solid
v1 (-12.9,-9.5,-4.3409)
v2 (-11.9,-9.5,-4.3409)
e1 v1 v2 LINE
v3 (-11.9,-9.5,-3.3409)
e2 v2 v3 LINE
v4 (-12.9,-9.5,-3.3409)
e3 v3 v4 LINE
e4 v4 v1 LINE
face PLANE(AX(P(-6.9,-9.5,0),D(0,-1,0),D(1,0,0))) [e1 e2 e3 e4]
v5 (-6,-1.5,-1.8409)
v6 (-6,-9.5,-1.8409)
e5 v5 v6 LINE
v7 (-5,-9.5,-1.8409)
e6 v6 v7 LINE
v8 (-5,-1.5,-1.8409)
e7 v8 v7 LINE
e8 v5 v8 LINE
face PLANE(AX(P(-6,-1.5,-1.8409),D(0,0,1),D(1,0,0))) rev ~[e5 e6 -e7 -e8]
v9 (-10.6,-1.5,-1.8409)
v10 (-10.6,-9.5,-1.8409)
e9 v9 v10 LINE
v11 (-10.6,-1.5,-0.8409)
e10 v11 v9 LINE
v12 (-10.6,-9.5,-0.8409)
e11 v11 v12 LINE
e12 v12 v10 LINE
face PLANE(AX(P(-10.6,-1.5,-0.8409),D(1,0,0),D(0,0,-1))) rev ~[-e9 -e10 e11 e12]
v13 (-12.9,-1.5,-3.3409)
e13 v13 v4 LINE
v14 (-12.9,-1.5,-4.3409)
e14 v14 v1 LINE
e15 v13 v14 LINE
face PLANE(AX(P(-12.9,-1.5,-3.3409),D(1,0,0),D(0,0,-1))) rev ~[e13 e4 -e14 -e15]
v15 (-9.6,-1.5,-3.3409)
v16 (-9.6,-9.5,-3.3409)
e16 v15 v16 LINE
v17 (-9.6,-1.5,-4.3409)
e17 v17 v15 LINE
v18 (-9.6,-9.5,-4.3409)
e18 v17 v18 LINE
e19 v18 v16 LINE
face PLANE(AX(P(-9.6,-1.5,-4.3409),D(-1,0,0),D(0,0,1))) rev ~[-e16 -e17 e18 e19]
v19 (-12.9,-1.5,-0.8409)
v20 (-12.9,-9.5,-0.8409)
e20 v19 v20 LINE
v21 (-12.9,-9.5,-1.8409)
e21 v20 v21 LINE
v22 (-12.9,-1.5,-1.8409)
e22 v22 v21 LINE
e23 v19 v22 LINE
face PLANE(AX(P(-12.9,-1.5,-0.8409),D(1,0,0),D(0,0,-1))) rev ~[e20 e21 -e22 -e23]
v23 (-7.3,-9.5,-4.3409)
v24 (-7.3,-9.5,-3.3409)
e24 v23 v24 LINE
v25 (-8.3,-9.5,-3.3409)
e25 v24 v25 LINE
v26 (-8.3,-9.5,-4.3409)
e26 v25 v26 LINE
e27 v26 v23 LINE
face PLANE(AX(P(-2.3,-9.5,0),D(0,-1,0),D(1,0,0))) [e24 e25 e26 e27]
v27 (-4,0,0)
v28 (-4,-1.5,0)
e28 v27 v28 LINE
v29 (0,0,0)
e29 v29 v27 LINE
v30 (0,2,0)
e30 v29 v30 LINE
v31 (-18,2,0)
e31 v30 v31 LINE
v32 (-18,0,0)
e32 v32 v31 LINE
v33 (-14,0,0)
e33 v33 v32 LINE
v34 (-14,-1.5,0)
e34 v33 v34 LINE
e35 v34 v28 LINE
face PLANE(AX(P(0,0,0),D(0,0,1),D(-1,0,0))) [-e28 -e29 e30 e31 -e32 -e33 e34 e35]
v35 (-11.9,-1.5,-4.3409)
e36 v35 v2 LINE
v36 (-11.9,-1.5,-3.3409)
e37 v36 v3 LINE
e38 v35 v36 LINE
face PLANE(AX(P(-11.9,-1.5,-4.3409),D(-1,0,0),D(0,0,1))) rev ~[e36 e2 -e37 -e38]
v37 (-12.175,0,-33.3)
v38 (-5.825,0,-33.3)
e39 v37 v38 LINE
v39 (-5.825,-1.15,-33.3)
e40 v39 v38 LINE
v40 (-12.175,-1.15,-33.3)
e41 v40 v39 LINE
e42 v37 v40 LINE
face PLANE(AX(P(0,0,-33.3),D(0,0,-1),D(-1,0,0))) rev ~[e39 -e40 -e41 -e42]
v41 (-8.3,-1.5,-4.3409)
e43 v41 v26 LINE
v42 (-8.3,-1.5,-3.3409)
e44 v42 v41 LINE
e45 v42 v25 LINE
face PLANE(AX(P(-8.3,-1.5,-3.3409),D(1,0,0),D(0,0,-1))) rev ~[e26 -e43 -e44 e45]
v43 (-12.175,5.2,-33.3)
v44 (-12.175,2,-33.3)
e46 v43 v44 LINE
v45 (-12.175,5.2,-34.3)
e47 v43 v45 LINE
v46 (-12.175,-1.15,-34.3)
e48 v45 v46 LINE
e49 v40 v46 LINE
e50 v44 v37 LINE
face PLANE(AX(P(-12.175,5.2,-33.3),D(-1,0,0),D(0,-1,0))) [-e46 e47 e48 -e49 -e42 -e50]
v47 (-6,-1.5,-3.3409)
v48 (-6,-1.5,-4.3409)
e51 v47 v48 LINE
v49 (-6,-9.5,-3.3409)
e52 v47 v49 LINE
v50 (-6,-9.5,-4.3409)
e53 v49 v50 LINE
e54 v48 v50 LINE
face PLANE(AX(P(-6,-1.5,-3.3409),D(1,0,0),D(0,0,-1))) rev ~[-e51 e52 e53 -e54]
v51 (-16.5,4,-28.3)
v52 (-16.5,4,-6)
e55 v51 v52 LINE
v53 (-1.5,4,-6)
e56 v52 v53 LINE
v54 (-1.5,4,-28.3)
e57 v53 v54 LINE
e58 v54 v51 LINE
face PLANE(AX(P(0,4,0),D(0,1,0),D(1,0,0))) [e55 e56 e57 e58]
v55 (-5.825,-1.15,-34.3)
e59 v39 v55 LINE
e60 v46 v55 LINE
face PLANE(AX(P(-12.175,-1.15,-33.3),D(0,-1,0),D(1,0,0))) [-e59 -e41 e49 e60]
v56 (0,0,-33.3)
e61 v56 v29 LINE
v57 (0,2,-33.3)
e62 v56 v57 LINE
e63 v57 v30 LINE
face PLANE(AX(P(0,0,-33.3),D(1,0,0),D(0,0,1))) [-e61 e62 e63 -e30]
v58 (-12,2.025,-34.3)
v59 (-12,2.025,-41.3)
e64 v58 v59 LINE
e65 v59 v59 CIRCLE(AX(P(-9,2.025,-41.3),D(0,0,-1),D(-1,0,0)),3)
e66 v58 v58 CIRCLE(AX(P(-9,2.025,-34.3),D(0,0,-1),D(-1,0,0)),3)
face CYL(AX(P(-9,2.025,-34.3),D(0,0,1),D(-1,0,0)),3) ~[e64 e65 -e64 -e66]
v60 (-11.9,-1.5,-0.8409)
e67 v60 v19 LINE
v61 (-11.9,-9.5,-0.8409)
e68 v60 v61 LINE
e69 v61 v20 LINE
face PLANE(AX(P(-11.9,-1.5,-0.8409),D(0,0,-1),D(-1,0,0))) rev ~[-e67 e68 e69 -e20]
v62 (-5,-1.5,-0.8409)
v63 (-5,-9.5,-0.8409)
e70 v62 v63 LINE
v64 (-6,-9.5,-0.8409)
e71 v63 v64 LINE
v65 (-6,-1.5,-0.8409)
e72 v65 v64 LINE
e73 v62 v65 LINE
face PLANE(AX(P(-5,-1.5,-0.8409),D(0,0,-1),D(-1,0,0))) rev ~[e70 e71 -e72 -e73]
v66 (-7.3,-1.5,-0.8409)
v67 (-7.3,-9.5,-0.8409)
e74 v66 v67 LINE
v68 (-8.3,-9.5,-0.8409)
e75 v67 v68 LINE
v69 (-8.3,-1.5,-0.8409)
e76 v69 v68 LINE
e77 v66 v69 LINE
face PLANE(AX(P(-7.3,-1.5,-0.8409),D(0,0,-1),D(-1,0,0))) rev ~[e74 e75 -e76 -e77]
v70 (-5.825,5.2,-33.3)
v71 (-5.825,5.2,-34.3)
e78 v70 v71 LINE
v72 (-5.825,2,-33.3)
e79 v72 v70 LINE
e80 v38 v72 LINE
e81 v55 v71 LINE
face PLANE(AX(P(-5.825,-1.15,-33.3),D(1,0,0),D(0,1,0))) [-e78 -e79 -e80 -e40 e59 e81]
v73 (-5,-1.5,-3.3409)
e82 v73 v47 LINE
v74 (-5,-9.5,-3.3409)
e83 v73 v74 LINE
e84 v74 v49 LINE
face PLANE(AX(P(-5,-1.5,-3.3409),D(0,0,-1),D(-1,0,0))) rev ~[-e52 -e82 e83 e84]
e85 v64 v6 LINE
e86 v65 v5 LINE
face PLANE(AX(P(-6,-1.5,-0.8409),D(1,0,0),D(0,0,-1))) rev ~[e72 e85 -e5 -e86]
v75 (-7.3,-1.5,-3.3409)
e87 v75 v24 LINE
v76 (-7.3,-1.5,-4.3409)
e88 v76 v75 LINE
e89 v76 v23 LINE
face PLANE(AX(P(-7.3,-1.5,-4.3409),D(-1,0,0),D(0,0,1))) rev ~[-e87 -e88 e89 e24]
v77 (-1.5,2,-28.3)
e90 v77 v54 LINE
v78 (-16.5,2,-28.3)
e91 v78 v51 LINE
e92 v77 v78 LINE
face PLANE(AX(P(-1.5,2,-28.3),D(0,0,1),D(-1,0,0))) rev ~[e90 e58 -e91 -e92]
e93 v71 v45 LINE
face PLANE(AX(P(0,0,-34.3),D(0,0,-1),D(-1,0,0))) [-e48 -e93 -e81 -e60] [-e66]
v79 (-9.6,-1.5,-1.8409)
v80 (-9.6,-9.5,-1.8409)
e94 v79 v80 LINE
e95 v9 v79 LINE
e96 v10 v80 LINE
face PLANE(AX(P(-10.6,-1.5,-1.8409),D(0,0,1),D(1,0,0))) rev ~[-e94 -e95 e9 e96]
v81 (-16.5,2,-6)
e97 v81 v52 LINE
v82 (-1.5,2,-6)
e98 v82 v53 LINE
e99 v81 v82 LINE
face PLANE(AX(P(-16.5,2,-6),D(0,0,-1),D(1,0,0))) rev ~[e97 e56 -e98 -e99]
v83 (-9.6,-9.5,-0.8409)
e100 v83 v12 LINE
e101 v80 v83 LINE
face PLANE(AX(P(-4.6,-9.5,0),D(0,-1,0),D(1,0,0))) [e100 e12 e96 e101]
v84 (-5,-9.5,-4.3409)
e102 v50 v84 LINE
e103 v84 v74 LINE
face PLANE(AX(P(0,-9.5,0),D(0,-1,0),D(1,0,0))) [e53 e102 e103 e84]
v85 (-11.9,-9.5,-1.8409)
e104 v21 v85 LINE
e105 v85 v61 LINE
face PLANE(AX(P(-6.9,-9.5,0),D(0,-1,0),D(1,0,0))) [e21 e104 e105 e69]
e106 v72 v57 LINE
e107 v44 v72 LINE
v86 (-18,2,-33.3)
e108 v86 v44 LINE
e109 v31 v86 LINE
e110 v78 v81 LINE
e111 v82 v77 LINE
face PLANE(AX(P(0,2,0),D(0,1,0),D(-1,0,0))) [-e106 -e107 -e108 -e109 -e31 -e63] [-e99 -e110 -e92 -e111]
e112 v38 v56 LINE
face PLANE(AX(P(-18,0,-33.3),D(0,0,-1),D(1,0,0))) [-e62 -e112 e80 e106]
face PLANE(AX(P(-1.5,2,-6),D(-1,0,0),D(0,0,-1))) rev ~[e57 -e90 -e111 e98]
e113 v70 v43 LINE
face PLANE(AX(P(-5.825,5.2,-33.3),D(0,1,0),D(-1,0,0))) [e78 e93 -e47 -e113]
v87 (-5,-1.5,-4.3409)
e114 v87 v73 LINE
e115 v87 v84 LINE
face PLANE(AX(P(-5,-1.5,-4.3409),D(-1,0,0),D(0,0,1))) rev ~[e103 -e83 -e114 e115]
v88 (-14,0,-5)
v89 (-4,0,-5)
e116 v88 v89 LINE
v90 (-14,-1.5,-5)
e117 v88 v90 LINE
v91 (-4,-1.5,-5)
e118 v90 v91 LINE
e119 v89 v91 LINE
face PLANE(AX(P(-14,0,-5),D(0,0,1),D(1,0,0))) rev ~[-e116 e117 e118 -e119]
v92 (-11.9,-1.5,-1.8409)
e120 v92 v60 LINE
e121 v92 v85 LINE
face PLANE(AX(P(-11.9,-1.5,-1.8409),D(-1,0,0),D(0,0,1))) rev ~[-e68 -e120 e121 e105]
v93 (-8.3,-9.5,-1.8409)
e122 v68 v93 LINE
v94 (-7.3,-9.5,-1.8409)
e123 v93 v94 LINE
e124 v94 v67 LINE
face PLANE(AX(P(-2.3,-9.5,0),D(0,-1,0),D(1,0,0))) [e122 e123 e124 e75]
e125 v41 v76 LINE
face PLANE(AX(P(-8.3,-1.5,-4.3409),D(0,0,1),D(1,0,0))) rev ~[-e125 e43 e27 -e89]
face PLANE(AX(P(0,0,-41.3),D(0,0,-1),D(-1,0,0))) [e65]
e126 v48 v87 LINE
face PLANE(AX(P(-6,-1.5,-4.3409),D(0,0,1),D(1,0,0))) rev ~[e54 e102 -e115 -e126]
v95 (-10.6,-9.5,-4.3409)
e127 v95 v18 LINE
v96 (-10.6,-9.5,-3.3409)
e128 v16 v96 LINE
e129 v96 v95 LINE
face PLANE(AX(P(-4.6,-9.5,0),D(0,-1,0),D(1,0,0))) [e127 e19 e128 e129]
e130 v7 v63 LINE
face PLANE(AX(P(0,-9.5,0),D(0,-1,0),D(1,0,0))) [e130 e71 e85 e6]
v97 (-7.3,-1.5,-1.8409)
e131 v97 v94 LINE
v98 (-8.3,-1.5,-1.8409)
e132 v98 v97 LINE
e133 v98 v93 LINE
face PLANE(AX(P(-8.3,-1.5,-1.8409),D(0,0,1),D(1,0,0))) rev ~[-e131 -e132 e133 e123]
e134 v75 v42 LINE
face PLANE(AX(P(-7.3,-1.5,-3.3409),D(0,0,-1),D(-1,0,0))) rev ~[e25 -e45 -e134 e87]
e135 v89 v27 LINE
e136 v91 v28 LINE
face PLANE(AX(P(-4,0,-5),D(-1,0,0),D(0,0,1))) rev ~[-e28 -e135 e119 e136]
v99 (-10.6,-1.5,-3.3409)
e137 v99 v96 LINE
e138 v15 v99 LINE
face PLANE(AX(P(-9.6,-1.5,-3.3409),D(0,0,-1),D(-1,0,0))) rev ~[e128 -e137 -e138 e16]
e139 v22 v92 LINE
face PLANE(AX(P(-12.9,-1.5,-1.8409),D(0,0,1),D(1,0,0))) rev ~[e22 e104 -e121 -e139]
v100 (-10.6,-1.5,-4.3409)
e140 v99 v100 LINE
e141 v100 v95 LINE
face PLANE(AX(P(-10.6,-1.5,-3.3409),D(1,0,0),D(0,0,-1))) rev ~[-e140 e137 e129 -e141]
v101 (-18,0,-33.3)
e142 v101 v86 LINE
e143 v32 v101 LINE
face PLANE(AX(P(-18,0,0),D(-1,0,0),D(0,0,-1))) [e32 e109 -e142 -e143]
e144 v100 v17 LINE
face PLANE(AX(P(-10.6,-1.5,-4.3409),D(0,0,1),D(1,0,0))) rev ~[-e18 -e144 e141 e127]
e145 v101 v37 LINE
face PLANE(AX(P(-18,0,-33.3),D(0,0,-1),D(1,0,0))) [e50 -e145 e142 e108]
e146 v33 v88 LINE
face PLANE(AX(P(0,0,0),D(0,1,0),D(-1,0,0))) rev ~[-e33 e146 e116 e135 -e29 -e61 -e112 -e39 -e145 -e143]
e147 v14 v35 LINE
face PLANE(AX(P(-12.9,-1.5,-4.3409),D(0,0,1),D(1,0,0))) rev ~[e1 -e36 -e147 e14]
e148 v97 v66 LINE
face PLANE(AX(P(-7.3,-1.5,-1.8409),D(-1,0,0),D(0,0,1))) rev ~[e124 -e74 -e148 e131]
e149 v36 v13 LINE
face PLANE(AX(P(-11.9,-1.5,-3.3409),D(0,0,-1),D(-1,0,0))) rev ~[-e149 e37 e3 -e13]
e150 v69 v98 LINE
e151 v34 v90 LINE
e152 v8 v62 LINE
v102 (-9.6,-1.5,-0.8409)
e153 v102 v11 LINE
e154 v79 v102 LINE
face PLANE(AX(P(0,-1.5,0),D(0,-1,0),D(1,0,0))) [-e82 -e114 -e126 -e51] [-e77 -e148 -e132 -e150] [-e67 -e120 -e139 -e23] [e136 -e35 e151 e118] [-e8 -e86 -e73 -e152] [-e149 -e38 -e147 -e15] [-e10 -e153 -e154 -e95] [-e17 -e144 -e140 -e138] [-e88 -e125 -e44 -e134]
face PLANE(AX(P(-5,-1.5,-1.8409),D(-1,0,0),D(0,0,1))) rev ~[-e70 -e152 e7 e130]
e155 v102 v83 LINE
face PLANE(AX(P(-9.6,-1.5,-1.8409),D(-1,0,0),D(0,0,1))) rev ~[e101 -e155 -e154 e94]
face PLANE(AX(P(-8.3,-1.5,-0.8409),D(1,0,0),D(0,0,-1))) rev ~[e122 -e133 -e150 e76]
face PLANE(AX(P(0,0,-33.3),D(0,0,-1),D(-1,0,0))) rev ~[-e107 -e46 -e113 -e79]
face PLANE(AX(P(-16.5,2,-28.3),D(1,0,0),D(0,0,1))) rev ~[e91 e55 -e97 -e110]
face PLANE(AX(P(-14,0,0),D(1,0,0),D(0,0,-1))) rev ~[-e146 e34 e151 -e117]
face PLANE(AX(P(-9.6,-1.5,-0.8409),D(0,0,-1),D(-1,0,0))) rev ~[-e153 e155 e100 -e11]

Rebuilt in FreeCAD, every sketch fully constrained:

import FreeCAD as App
import Part
import Sketcher
Q = App.Units.Quantity


def add_polygon(sketch, points):
    """Adds a closed chain of lines whose ends are joined by coincident constraints."""
    first, n = sketch.GeometryCount, len(points)
    for a, b in zip(points, points[1:] + points[:1]):
        sketch.addGeometry(Part.LineSegment(App.Vector(*a, 0), App.Vector(*b, 0)), False)
    for i in range(n):
        sketch.addConstraint(Sketcher.Constraint("Coincident", first + i, 2, first + (i + 1) % n, 1))

doc = App.newDocument("Part")
body = doc.addObject("PartDesign::Body", "Body")

sketch1 = body.newObject("Sketcher::SketchObject", "Sketch")
sketch1.AttachmentSupport = (doc.getObject("XZ_Plane"), [""])
sketch1.MapMode = "FlatFace"
add_polygon(sketch1, [(-18, 0), (0, 0), (0, -33), (-18, -33)])
sketch1.addConstraint([
    Sketcher.Constraint("Horizontal", 0),
    Sketcher.Constraint("Vertical", 1),
    Sketcher.Constraint("Horizontal", 2),
    Sketcher.Constraint("Vertical", 3),
    Sketcher.Constraint("Coincident", 0, 2, -1, 1),
    Sketcher.Constraint("DistanceX", 0, 1, 0, 2, Q("18 mm")),
    Sketcher.Constraint("DistanceY", 1, 2, 1, 1, Q("33.3 mm")),
])
pad1 = body.newObject("PartDesign::Pad", "Pad")
pad1.Profile = sketch1
pad1.Length = 2
pad1.Reversed = True

sketch2 = body.newObject("Sketcher::SketchObject", "Sketch001")
sketch2.AttachmentSupport = (doc.getObject("XZ_Plane"), [""])
sketch2.MapMode = "FlatFace"
sketch2.AttachmentOffset = App.Placement(App.Vector(0, 0, -2), App.Rotation())
add_polygon(sketch2, [(-16, -28), (-16, -6), (-2, -6), (-2, -28)])
sketch2.addConstraint([
    Sketcher.Constraint("Vertical", 0),
    Sketcher.Constraint("Horizontal", 1),
    Sketcher.Constraint("Vertical", 2),
    Sketcher.Constraint("Horizontal", 3),
    Sketcher.Constraint("DistanceY", 0, 2, -1, 1, Q("6 mm")),
    Sketcher.Constraint("DistanceX", 1, 2, -1, 1, Q("1.5 mm")),
    Sketcher.Constraint("DistanceX", 1, 1, 1, 2, Q("15 mm")),
    Sketcher.Constraint("DistanceY", 0, 1, 0, 2, Q("22.3 mm")),
])
pad2 = body.newObject("PartDesign::Pad", "Pad001")
pad2.Profile = sketch2
pad2.Length = 2
pad2.Reversed = True

sketch3 = body.newObject("Sketcher::SketchObject", "Sketch002")
sketch3.AttachmentSupport = (doc.getObject("XY_Plane"), [""])
sketch3.MapMode = "FlatFace"
sketch3.AttachmentOffset = App.Placement(App.Vector(0, 0, -33.3), App.Rotation())
add_polygon(sketch3, [(-12, 5), (-6, 5), (-6, -1), (-12, -1)])
sketch3.addConstraint([
    Sketcher.Constraint("Horizontal", 0),
    Sketcher.Constraint("Vertical", 1),
    Sketcher.Constraint("Horizontal", 2),
    Sketcher.Constraint("Vertical", 3),
    Sketcher.Constraint("Equal", 2, 1),
    Sketcher.Constraint("DistanceX", 0, 1, 0, 2, Q("6.35 mm")),
    Sketcher.Constraint("DistanceY", -1, 1, 0, 2, Q("5.2 mm")),
    Sketcher.Constraint("DistanceX", 0, 2, -1, 1, Q("5.825 mm")),
])
pad3 = body.newObject("PartDesign::Pad", "Pad002")
pad3.Profile = sketch3
pad3.Length = 1
pad3.Reversed = True

sketch4 = body.newObject("Sketcher::SketchObject", "Sketch003")
sketch4.AttachmentSupport = (doc.getObject("XY_Plane"), [""])
sketch4.MapMode = "FlatFace"
sketch4.AttachmentOffset = App.Placement(App.Vector(0, 0, -34.3), App.Rotation())
sketch4.addGeometry(Part.Circle(App.Vector(-9, 2, 0), App.Vector(0, 0, 1), 3), False)
sketch4.addConstraint([
    Sketcher.Constraint("Diameter", 0, Q("6 mm")),
    Sketcher.Constraint("DistanceX", 0, 3, -1, 1, Q("9 mm")),
    Sketcher.Constraint("DistanceY", -1, 1, 0, 3, Q("2.025 mm")),
])
pad4 = body.newObject("PartDesign::Pad", "Pad003")
pad4.Profile = sketch4
pad4.Length = 7
pad4.Reversed = True

sketch5 = body.newObject("Sketcher::SketchObject", "Sketch004")
sketch5.AttachmentSupport = (doc.getObject("XZ_Plane"), [""])
sketch5.MapMode = "FlatFace"
add_polygon(sketch5, [(-4, 0), (-14, 0), (-14, -5), (-4, -5)])
sketch5.addConstraint([
    Sketcher.Constraint("Horizontal", 0),
    Sketcher.Constraint("Vertical", 1),
    Sketcher.Constraint("Horizontal", 2),
    Sketcher.Constraint("Vertical", 3),
    Sketcher.Constraint("PointOnObject", 0, 2, -1),
    Sketcher.Constraint("DistanceX", 0, 2, 0, 1, Q("10 mm")),
    Sketcher.Constraint("DistanceY", 1, 2, 1, 1, Q("5 mm")),
    Sketcher.Constraint("DistanceX", 0, 2, -1, 1, Q("14 mm")),
])
pad5 = body.newObject("PartDesign::Pad", "Pad004")
pad5.Profile = sketch5
pad5.Length = 1.5

sketch6 = body.newObject("Sketcher::SketchObject", "Sketch005")
sketch6.AttachmentSupport = (doc.getObject("XZ_Plane"), [""])
sketch6.MapMode = "FlatFace"
sketch6.AttachmentOffset = App.Placement(App.Vector(0, 0, 1.5), App.Rotation())
add_polygon(sketch6, [(-6, -0.8), (-6, -1.8), (-5, -1.8), (-5, -0.8)])
add_polygon(sketch6, [(-6, -3.3), (-6, -4.3), (-5, -4.3), (-5, -3.3)])
sketch6.addConstraint([
    Sketcher.Constraint("Vertical", 0),
    Sketcher.Constraint("Horizontal", 1),
    Sketcher.Constraint("Vertical", 2),
    Sketcher.Constraint("Horizontal", 3),
    Sketcher.Constraint("Vertical", 4),
    Sketcher.Constraint("Horizontal", 5),
    Sketcher.Constraint("Vertical", 6),
    Sketcher.Constraint("Horizontal", 7),
    Sketcher.Constraint("Vertical", 3, 2, 4, 2),
    Sketcher.Constraint("Vertical", 2, 2, 5, 2),
    Sketcher.Constraint("Equal", 7, 0),
    Sketcher.Constraint("Equal", 2, 4),
    Sketcher.Constraint("DistanceX", 1, 1, 1, 2, Q("1 mm")),
    Sketcher.Constraint("DistanceY", 6, 2, 1, 2, Q("1.5 mm")),
    Sketcher.Constraint("DistanceX", 0, 2, -1, 1, Q("6 mm")),
    Sketcher.Constraint("DistanceY", 0, 2, -1, 1, Q("1.841 mm")),
])
pad6 = body.newObject("PartDesign::Pad", "Pad005")
pad6.Profile = sketch6
pad6.Length = 8
doc.recompute()

linearpattern = body.newObject("PartDesign::LinearPattern", "LinearPattern")
linearpattern.Originals = [pad6]
linearpattern.Direction = (doc.getObject("X_Axis"), [""])
linearpattern.Mode = "offset"
linearpattern.Offset = 2.3
linearpattern.Occurrences = 4
linearpattern.Reversed = True
body.Tip = linearpattern

doc.recompute()
